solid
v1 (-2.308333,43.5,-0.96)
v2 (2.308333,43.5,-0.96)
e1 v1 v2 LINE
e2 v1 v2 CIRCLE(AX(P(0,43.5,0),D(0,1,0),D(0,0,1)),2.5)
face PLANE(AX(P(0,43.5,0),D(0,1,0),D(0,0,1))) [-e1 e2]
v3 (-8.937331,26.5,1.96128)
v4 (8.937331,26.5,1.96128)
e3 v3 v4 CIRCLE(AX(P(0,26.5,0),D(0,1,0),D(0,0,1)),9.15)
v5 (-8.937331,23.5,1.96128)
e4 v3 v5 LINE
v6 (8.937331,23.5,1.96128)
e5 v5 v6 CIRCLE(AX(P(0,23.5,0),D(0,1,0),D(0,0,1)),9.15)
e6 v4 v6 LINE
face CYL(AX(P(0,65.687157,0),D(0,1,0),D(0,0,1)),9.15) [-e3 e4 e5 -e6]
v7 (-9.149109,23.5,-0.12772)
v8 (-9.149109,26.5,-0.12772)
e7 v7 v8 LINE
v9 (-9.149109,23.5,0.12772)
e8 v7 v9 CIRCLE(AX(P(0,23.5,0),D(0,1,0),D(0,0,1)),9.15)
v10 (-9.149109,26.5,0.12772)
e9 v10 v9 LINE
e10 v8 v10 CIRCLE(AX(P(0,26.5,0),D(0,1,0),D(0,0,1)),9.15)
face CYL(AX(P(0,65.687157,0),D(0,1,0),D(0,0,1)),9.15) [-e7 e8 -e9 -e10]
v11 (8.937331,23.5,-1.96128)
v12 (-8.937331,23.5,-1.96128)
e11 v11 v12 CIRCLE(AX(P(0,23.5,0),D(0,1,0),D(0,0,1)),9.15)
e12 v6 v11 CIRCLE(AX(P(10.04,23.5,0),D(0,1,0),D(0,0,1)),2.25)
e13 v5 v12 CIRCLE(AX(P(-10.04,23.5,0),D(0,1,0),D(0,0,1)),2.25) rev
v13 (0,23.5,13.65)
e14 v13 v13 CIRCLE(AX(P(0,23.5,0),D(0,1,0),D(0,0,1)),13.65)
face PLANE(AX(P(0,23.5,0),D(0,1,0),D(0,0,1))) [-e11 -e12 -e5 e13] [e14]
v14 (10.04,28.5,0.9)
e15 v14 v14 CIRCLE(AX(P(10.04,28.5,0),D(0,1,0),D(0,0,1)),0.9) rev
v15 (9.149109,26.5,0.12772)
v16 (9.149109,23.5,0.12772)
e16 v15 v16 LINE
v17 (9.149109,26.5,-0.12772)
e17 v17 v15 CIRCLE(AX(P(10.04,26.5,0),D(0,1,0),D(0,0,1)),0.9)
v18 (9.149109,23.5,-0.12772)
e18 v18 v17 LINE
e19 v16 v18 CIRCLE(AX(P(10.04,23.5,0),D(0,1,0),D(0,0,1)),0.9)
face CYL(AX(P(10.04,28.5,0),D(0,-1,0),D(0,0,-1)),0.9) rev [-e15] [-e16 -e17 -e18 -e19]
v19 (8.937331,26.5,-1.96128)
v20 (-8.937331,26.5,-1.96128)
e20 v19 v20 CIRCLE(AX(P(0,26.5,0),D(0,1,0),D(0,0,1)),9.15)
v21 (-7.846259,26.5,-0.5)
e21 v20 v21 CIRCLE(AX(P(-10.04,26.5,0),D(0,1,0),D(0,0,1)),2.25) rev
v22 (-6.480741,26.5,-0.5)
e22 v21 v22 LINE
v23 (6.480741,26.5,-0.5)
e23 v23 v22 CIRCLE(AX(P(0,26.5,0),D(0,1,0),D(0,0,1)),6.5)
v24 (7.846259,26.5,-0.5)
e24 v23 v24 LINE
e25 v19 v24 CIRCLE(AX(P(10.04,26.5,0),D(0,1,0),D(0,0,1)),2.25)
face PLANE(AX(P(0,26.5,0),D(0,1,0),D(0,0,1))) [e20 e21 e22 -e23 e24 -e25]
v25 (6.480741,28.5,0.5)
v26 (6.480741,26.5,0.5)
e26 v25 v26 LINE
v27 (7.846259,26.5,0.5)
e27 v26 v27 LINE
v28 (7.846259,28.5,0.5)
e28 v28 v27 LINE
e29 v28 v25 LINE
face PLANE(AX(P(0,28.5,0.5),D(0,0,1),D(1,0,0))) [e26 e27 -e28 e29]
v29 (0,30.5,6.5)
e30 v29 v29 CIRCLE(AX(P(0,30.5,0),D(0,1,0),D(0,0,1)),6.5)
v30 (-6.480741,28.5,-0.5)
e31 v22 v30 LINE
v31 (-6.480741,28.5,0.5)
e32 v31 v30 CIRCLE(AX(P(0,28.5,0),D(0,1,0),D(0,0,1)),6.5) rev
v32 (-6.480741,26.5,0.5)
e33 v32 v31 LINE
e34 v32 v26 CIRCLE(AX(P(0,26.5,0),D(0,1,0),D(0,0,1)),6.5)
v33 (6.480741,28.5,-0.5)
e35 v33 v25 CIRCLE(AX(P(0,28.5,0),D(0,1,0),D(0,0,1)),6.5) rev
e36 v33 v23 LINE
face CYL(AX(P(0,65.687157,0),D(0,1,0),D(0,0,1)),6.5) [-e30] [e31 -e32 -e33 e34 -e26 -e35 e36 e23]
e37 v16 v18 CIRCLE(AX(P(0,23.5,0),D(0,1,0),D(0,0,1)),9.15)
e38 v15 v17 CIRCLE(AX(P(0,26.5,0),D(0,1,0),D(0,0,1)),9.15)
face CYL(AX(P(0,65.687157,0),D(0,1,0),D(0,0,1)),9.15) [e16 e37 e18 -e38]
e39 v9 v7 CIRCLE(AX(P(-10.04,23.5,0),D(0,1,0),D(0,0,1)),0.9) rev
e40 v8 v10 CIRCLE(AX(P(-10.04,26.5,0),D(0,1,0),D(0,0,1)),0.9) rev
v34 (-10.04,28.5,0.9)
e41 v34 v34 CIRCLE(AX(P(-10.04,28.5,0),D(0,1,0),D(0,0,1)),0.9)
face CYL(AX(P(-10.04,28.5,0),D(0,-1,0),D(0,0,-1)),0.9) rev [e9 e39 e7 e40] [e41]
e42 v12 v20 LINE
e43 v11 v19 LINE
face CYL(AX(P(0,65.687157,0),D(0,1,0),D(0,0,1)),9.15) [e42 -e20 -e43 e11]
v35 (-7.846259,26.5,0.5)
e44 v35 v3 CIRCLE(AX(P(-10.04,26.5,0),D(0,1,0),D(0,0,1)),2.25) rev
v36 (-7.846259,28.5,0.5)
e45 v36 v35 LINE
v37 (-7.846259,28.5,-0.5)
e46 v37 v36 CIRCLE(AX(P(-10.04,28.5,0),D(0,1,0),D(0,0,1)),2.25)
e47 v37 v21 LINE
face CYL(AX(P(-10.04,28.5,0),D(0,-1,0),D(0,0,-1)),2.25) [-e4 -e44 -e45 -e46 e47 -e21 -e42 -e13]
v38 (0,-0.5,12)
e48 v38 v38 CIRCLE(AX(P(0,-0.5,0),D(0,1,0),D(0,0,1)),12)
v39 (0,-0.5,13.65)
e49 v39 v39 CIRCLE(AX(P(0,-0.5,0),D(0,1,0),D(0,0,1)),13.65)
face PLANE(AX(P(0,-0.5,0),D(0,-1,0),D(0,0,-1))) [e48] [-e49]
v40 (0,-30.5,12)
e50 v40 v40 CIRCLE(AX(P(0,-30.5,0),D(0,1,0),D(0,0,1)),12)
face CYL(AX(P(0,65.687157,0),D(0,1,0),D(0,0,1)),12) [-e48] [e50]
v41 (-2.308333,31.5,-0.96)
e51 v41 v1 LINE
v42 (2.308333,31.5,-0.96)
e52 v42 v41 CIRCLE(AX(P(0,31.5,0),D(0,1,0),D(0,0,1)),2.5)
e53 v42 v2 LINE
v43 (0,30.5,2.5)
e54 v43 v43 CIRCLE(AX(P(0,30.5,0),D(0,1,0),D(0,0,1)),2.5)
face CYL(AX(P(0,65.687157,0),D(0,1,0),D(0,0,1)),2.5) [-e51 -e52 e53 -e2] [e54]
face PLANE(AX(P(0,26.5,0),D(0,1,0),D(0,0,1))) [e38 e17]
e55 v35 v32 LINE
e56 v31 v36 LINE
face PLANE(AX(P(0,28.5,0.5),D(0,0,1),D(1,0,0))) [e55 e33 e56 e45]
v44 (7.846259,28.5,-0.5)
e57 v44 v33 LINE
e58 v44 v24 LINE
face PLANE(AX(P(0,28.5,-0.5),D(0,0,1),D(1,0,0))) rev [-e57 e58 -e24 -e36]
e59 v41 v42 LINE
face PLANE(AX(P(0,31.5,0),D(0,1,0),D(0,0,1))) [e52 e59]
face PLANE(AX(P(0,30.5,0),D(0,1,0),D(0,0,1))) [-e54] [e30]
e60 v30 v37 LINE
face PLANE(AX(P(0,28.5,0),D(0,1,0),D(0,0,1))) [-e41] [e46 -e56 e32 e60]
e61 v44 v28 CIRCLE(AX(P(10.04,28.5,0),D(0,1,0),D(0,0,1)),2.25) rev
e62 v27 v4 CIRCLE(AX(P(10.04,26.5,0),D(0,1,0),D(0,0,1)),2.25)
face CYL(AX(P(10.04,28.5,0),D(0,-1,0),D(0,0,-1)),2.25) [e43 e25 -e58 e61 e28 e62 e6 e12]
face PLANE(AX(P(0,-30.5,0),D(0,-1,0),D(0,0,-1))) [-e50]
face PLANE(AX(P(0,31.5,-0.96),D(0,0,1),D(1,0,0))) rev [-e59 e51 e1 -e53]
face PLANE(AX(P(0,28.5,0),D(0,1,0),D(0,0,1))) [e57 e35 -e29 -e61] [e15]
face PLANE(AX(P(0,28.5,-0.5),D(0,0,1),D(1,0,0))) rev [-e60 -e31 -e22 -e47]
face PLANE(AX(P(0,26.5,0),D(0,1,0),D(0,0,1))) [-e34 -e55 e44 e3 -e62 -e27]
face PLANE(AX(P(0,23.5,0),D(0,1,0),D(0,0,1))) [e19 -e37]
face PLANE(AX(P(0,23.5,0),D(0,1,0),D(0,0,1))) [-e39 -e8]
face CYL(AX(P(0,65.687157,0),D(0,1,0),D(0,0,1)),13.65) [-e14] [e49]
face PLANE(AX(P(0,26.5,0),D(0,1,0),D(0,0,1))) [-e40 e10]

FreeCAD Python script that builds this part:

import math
import FreeCAD as App
import Part
import Sketcher
from FreeCAD import Vector
Q = App.Units.Quantity


def add_polygon(sketch, points):
    """Adds a closed chain of lines whose ends are joined by coincident constraints."""
    first, n = sketch.GeometryCount, len(points)
    for a, b in zip(points, points[1:] + points[:1]):
        sketch.addGeometry(Part.LineSegment(App.Vector(*a, 0), App.Vector(*b, 0)), False)
    for i in range(n):
        sketch.addConstraint(Sketcher.Constraint("Coincident", first + i, 2, first + (i + 1) % n, 1))

doc = App.newDocument("Part")
body = doc.addObject("PartDesign::Body", "Body")

# Sketch on XY plane
sketch1 = body.newObject("Sketcher::SketchObject", "Sketch")
sketch1.AttachmentSupport = (doc.getObject("XY_Plane"), [""])
sketch1.MapMode = "FlatFace"
add_polygon(sketch1, [(-2.5, 43.5), (-2.5, 30.5), (-6.5, 30.5), (-6.5, 26.5), (-9.2, 26.5), (-9.2, 23.5), (-13.7, 23.5), (-13.7, -0.5), (-12, -0.5), (-12, -30.5), (0, -30.5), (0, 43.5)])  # lines 0-11
sketch1.addConstraint(Sketcher.Constraint("Vertical", 0))
sketch1.addConstraint(Sketcher.Constraint("Horizontal", 1))
sketch1.addConstraint(Sketcher.Constraint("Vertical", 2))
sketch1.addConstraint(Sketcher.Constraint("Horizontal", 3))
sketch1.addConstraint(Sketcher.Constraint("Vertical", 4))
sketch1.addConstraint(Sketcher.Constraint("Horizontal", 5))
sketch1.addConstraint(Sketcher.Constraint("Vertical", 6))
sketch1.addConstraint(Sketcher.Constraint("Horizontal", 7))
sketch1.addConstraint(Sketcher.Constraint("Vertical", 8))
sketch1.addConstraint(Sketcher.Constraint("Horizontal", 9))
sketch1.addConstraint(Sketcher.Constraint("Vertical", 10))
sketch1.addConstraint(Sketcher.Constraint("Horizontal", 11))
sketch1.addConstraint(Sketcher.Constraint("PointOnObject", 9, 2, -2))
sketch1.addConstraint(Sketcher.Constraint("Equal", 1, 2))
sketch1.addConstraint(Sketcher.Constraint("DistanceX", 1, 2, 1, 1, Q("4 mm")))
sketch1.addConstraint(Sketcher.Constraint("DistanceX", 9, 1, 9, 2, Q("12 mm")))
sketch1.addConstraint(Sketcher.Constraint("DistanceY", 0, 2, 0, 1, Q("13 mm")))
sketch1.addConstraint(Sketcher.Constraint("DistanceY", 4, 2, 4, 1, Q("3 mm")))
sketch1.addConstraint(Sketcher.Constraint("DistanceY", 6, 2, 6, 1, Q("24 mm")))
sketch1.addConstraint(Sketcher.Constraint("DistanceY", 8, 2, 8, 1, Q("30 mm")))
sketch1.addConstraint(Sketcher.Constraint("DistanceX", 5, 2, 5, 1, Q("4.5 mm")))
sketch1.addConstraint(Sketcher.Constraint("DistanceX", 11, 2, 11, 1, Q("2.5 mm")))
sketch1.addConstraint(Sketcher.Constraint("DistanceX", 3, 2, 3, 1, Q("2.65 mm")))
sketch1.addConstraint(Sketcher.Constraint("DistanceY", -1, 1, 0, 2, Q("30.5 mm")))
revolution = body.newObject("PartDesign::Revolution", "Revolution")
revolution.Profile = sketch1
revolution.ReferenceAxis = (sketch1, ["V_Axis"])
revolution.Angle = 360

# Sketch on XZ plane
sketch2 = body.newObject("Sketcher::SketchObject", "Sketch001")
sketch2.AttachmentSupport = (doc.getObject("XZ_Plane"), [""])
sketch2.MapMode = "FlatFace"
sketch2.AttachmentOffset = App.Placement(Vector(0, 0, -43.5), App.Rotation())
add_polygon(sketch2, [(-56, -1), (56, -1), (56, -108), (-56, -108)])  # lines 0-3
sketch2.addConstraint(Sketcher.Constraint("Horizontal", 0))
sketch2.addConstraint(Sketcher.Constraint("Vertical", 1))
sketch2.addConstraint(Sketcher.Constraint("Horizontal", 2))
sketch2.addConstraint(Sketcher.Constraint("Vertical", 3))
sketch2.addConstraint(Sketcher.Constraint("DistanceY", 0, 2, -1, 1, Q("0.96 mm")))
sketch2.addConstraint(Sketcher.Constraint("DistanceY", 1, 2, 1, 1, Q("106.544369 mm")))
sketch2.addConstraint(Sketcher.Constraint("DistanceX", 0, 1, 0, 2, Q("111.161034 mm")))
sketch2.addConstraint(Sketcher.Constraint("DistanceX", -1, 1, 0, 2, Q("55.580517 mm")))
pocket1 = body.newObject("PartDesign::Pocket", "Pocket")
pocket1.Profile = sketch2
pocket1.Length = 12
pocket1.Reversed = True

# Sketch on XZ plane
sketch3 = body.newObject("Sketcher::SketchObject", "Sketch002")
sketch3.AttachmentSupport = (doc.getObject("XZ_Plane"), [""])
sketch3.MapMode = "FlatFace"
sketch3.AttachmentOffset = App.Placement(Vector(0, 0, -23.5), App.Rotation())
sketch3.addGeometry(Part.LineSegment(Vector(-7.8, 0.5, 0), Vector(7.8, 0.5, 0)), False)
sketch3.addGeometry(Part.ArcOfCircle(Part.Circle(Vector(10, 0, 0), Vector(0, 0, 1), 2.2), math.radians(-167), math.radians(167)), False)
sketch3.addGeometry(Part.LineSegment(Vector(7.8, -0.5, 0), Vector(-7.8, -0.5, 0)), False)
sketch3.addGeometry(Part.ArcOfCircle(Part.Circle(Vector(-10, 0, 0), Vector(0, 0, 1), 2.2), math.radians(13), math.radians(347)), False)
sketch3.addGeometry(Part.Circle(Vector(-10, 0, 0), Vector(0, 0, 1), 0.9), False)
sketch3.addGeometry(Part.Circle(Vector(10, 0, 0), Vector(0, 0, 1), 0.9), False)
sketch3.addConstraint(Sketcher.Constraint("Coincident", 0, 2, 1, 2))
sketch3.addConstraint(Sketcher.Constraint("Coincident", 1, 1, 2, 1))
sketch3.addConstraint(Sketcher.Constraint("Coincident", 2, 2, 3, 2))
sketch3.addConstraint(Sketcher.Constraint("Coincident", 3, 1, 0, 1))
sketch3.addConstraint(Sketcher.Constraint("Horizontal", 0))
sketch3.addConstraint(Sketcher.Constraint("Horizontal", 2))
sketch3.addConstraint(Sketcher.Constraint("Coincident", 4, 3, 3, 3))
sketch3.addConstraint(Sketcher.Constraint("Coincident", 5, 3, 1, 3))
sketch3.addConstraint(Sketcher.Constraint("Equal", 1, 3))
sketch3.addConstraint(Sketcher.Constraint("Equal", 4, 5))
sketch3.addConstraint(Sketcher.Constraint("Symmetric", 1, 3, 3, 3, -1, 1))
sketch3.addConstraint(Sketcher.Constraint("Symmetric", 0, 2, 1, 1, -1))
sketch3.addConstraint(Sketcher.Constraint("Diameter", 4, Q("1.8 mm")))
sketch3.addConstraint(Sketcher.Constraint("Radius", 1, Q("2.25 mm")))
sketch3.addConstraint(Sketcher.Constraint("DistanceY", 1, 1, 0, 2, Q("1 mm")))
sketch3.addConstraint(Sketcher.Constraint("DistanceX", -1, 1, 1, 3, Q("10.04 mm")))
pad1 = body.newObject("PartDesign::Pad", "Pad")
pad1.Profile = sketch3
pad1.Length = 5
pad1.Reversed = True

doc.recompute()
